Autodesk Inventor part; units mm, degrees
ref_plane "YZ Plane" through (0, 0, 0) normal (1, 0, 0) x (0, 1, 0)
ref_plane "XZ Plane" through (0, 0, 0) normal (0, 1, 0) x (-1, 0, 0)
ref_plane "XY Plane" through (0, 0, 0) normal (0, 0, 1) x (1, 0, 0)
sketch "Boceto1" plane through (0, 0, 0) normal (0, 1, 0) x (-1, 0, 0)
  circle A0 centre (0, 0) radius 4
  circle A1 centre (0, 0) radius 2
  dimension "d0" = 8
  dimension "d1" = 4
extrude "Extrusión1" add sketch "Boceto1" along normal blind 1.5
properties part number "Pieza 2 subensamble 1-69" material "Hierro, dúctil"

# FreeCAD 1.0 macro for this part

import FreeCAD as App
import Part
import Sketcher
from FreeCAD import Vector
Q = App.Units.Quantity

doc = App.newDocument("Part")
body = doc.addObject("PartDesign::Body", "Body")

# Sketch on XZ plane
sketch1 = body.newObject("Sketcher::SketchObject", "Sketch")
sketch1.AttachmentSupport = (doc.getObject("XZ_Plane"), [""])
sketch1.MapMode = "FlatFace"
sketch1.addGeometry([
    Part.Circle(Vector(0, 0, 0), Vector(0, 0, 1), 4),
    Part.Circle(Vector(0, 0, 0), Vector(0, 0, 1), 2),
], False)
sketch1.addConstraint([
    Sketcher.Constraint("Coincident", 0, 3, -1, 1),
    Sketcher.Constraint("Coincident", 1, 3, -1, 1),
    Sketcher.Constraint("Diameter", 0, Q("8 mm")),
    Sketcher.Constraint("Diameter", 1, Q("4 mm")),
])
pad1 = body.newObject("PartDesign::Pad", "Pad")
pad1.Profile = sketch1
pad1.Length = 1.5
pad1.Reversed = True

doc.recompute()
